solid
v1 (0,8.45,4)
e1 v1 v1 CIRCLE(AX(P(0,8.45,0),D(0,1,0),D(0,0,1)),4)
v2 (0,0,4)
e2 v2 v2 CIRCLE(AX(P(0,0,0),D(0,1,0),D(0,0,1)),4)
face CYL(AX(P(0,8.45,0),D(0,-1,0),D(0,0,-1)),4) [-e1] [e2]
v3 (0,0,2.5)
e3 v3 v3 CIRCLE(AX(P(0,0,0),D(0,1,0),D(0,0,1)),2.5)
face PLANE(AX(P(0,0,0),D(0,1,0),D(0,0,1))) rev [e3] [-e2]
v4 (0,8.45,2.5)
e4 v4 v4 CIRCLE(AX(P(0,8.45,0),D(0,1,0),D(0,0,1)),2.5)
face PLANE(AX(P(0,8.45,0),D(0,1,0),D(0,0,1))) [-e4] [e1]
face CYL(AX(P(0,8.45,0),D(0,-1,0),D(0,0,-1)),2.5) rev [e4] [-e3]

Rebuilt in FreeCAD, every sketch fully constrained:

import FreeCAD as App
import Part
import Sketcher
Q = App.Units.Quantity

doc = App.newDocument("Part")
body = doc.addObject("PartDesign::Body", "Body")

sketch1 = body.newObject("Sketcher::SketchObject", "Sketch")
sketch1.AttachmentSupport = (doc.getObject("XZ_Plane"), [""])
sketch1.MapMode = "FlatFace"
sketch1.addGeometry([
    Part.Circle(App.Vector(0, 0, 0), App.Vector(0, 0, 1), 4),
    Part.Circle(App.Vector(0, 0, 0), App.Vector(0, 0, 1), 2.5),
], False)
sketch1.addConstraint([
    Sketcher.Constraint("Coincident", 0, 3, -1, 1),
    Sketcher.Constraint("Coincident", 1, 3, -1, 1),
    Sketcher.Constraint("Diameter", 0, Q("8 mm")),
    Sketcher.Constraint("Diameter", 1, Q("5 mm")),
])
pad1 = body.newObject("PartDesign::Pad", "Pad")
pad1.Profile = sketch1
pad1.Length = 8.45
pad1.Reversed = True

doc.recompute()
